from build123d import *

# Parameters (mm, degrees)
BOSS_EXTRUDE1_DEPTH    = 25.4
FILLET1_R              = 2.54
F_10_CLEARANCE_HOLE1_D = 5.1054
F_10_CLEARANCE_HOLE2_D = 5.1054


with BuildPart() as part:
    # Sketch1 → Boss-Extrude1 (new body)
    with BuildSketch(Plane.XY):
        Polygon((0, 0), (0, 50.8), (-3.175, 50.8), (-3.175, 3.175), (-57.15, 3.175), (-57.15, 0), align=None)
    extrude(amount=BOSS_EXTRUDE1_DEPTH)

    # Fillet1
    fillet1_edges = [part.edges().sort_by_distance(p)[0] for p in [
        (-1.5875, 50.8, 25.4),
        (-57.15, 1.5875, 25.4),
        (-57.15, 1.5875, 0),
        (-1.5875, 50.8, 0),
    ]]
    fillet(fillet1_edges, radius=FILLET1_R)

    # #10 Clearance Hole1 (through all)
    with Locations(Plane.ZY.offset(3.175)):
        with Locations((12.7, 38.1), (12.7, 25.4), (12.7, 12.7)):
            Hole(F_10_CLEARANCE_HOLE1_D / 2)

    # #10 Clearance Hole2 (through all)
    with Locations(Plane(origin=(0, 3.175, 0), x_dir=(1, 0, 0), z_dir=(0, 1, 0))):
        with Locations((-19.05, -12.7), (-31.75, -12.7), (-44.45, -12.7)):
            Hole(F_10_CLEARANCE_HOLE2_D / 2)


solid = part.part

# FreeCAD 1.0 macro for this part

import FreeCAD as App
import Part
import Sketcher
Q = App.Units.Quantity


def edges_at(feature, points):
    """Names of the edges that pass closest to the given points."""
    edges = feature.Shape.Edges
    near = lambda p: min(range(len(edges)), key=lambda i: edges[i].distToShape(Part.Vertex(*p))[0])
    return sorted({f"Edge{near(p) + 1}" for p in points})


def add_polygon(sketch, points):
    """Adds a closed chain of lines whose ends are joined by coincident constraints."""
    first, n = sketch.GeometryCount, len(points)
    for a, b in zip(points, points[1:] + points[:1]):
        sketch.addGeometry(Part.LineSegment(App.Vector(*a, 0), App.Vector(*b, 0)), False)
    for i in range(n):
        sketch.addConstraint(Sketcher.Constraint("Coincident", first + i, 2, first + (i + 1) % n, 1))

doc = App.newDocument("Part")
body = doc.addObject("PartDesign::Body", "Body")

# Sketch on XY plane
sketch1 = body.newObject("Sketcher::SketchObject", "Sketch")
sketch1.AttachmentSupport = (doc.getObject("XY_Plane"), [""])
sketch1.MapMode = "FlatFace"
add_polygon(sketch1, [(0, 0), (0, 50.8), (-3.2, 50.8), (-3.2, 3.2), (-57.1, 3.2), (-57.1, 0)])  # lines 0-5
sketch1.addConstraint(Sketcher.Constraint("Vertical", 0))
sketch1.addConstraint(Sketcher.Constraint("Horizontal", 1))
sketch1.addConstraint(Sketcher.Constraint("Vertical", 2))
sketch1.addConstraint(Sketcher.Constraint("Horizontal", 3))
sketch1.addConstraint(Sketcher.Constraint("Vertical", 4))
sketch1.addConstraint(Sketcher.Constraint("Horizontal", 5))
sketch1.addConstraint(Sketcher.Constraint("Coincident", 5, 2, -1, 1))
sketch1.addConstraint(Sketcher.Constraint("Equal", 1, 4))
sketch1.addConstraint(Sketcher.Constraint("DistanceY", 0, 1, 0, 2, Q("2 in")))
sketch1.addConstraint(Sketcher.Constraint("DistanceX", 5, 1, 5, 2, Q("2.25 in")))
sketch1.addConstraint(Sketcher.Constraint("DistanceX", 1, 2, 1, 1, Q("0.125 in")))
pad1 = body.newObject("PartDesign::Pad", "Pad")
pad1.Profile = sketch1
pad1.Length = Q("1 in")
doc.recompute()

fillet = body.newObject("PartDesign::Fillet", "Fillet")
fillet.Base = (pad1, edges_at(pad1, [
    (-1.587, 50.8, 25.4),
    (-57.15, 1.587, 25.4),
    (-57.15, 1.587, 0),
    (-1.587, 50.8, 0),
]))
fillet.Radius = Q("0.1 in")

# Sketch on YZ plane
sketch2 = body.newObject("Sketcher::SketchObject", "Sketch001")
sketch2.AttachmentSupport = (doc.getObject("YZ_Plane"), [""])
sketch2.MapMode = "FlatFace"
sketch2.AttachmentOffset = App.Placement(App.Vector(0, 0, -0.125 * 25.4), App.Rotation())
sketch2.addGeometry(Part.Circle(App.Vector(38.1, 12.7, 0), App.Vector(0, 0, 1), 2.6), False)
sketch2.addGeometry(Part.Circle(App.Vector(25.4, 12.7, 0), App.Vector(0, 0, 1), 2.6), False)
sketch2.addGeometry(Part.Circle(App.Vector(12.7, 12.7, 0), App.Vector(0, 0, 1), 2.6), False)
sketch2.addConstraint(Sketcher.Constraint("Equal", 0, 1))
sketch2.addConstraint(Sketcher.Constraint("Equal", 1, 2))
sketch2.addConstraint(Sketcher.Constraint("Horizontal", 0, 3, 1, 3))
sketch2.addConstraint(Sketcher.Constraint("Horizontal", 1, 3, 2, 3))
sketch2.addConstraint(Sketcher.Constraint("Diameter", 0, Q("0.201 in")))
sketch2.addConstraint(Sketcher.Constraint("DistanceX", -1, 1, 1, 3, Q("1 in")))
sketch2.addConstraint(Sketcher.Constraint("DistanceX", 2, 3, 0, 3, Q("1 in")))
sketch2.addConstraint(Sketcher.Constraint("DistanceX", -1, 1, 0, 3, Q("1.5 in")))
sketch2.addConstraint(Sketcher.Constraint("DistanceY", -1, 1, 0, 3, Q("0.5 in")))
doc.recompute()
hole = body.newObject("PartDesign::Hole", "Hole")
hole.Profile = sketch2
hole.ThreadType = "None"
hole.Diameter = Q("0.201 in")
hole.DepthType = "ThroughAll"
hole.Reversed = True

# Sketch on XZ plane
sketch3 = body.newObject("Sketcher::SketchObject", "Sketch002")
sketch3.AttachmentSupport = (doc.getObject("XZ_Plane"), [""])
sketch3.MapMode = "FlatFace"
sketch3.AttachmentOffset = App.Placement(App.Vector(0, 0, -0.125 * 25.4), App.Rotation())
sketch3.addGeometry(Part.Circle(App.Vector(-19.1, 12.7, 0), App.Vector(0, 0, 1), 2.6), False)
sketch3.addGeometry(Part.Circle(App.Vector(-31.8, 12.7, 0), App.Vector(0, 0, 1), 2.6), False)
sketch3.addGeometry(Part.Circle(App.Vector(-44.5, 12.7, 0), App.Vector(0, 0, 1), 2.6), False)
sketch3.addConstraint(Sketcher.Constraint("Equal", 0, 1))
sketch3.addConstraint(Sketcher.Constraint("Equal", 1, 2))
sketch3.addConstraint(Sketcher.Constraint("Horizontal", 0, 3, 1, 3))
sketch3.addConstraint(Sketcher.Constraint("Horizontal", 1, 3, 2, 3))
sketch3.addConstraint(Sketcher.Constraint("Diameter", 0, Q("0.201 in")))
sketch3.addConstraint(Sketcher.Constraint("DistanceX", 2, 3, 0, 3, Q("1 in")))
sketch3.addConstraint(Sketcher.Constraint("DistanceY", -1, 1, 0, 3, Q("0.5 in")))
sketch3.addConstraint(Sketcher.Constraint("DistanceX", 1, 3, 0, 3, Q("0.5 in")))
sketch3.addConstraint(Sketcher.Constraint("DistanceX", 0, 3, -1, 1, Q("0.75 in")))
doc.recompute()
hole2 = body.newObject("PartDesign::Hole", "Hole001")
hole2.Profile = sketch3
hole2.ThreadType = "None"
hole2.Diameter = Q("0.201 in")
hole2.DepthType = "ThroughAll"
hole2.Reversed = True

doc.recompute()
